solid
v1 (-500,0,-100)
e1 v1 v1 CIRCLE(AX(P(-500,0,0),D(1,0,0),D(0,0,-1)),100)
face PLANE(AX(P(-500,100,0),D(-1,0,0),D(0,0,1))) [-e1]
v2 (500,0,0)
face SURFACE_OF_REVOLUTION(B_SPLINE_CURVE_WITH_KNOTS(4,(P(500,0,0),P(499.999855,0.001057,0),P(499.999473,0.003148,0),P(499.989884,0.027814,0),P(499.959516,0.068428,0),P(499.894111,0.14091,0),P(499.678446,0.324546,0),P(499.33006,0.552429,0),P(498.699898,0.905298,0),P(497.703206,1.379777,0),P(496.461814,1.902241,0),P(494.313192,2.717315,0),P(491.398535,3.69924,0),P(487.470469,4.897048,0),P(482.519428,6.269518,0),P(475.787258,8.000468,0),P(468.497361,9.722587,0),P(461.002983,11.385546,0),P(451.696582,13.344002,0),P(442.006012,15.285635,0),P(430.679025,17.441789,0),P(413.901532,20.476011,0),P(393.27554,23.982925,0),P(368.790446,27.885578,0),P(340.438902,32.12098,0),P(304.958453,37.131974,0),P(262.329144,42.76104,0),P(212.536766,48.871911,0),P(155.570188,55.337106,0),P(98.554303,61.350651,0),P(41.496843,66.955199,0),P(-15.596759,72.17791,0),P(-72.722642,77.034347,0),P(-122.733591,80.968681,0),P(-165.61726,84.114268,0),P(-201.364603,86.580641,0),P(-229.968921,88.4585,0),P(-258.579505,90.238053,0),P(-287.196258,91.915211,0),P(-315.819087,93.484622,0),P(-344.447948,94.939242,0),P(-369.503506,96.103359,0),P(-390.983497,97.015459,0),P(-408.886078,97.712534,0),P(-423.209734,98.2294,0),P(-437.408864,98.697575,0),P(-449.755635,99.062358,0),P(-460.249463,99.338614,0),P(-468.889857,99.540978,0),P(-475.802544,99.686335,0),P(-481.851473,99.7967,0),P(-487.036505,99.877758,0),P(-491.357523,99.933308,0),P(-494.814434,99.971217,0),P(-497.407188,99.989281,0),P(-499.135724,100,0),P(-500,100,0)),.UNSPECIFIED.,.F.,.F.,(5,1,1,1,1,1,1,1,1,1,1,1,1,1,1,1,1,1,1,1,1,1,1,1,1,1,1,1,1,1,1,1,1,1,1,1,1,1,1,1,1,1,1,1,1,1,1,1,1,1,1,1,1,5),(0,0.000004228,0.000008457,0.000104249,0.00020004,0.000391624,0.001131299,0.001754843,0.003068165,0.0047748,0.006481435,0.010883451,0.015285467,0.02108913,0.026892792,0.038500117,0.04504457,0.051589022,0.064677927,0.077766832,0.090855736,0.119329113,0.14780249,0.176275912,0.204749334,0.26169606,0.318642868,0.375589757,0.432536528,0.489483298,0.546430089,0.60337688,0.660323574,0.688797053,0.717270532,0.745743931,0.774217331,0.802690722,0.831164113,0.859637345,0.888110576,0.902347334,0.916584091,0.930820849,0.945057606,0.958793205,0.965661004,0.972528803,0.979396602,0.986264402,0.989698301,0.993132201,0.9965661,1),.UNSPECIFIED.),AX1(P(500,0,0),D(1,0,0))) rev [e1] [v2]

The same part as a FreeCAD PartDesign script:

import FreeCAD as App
import Part
import Sketcher
from FreeCAD import Vector

doc = App.newDocument("Part")
body = doc.addObject("PartDesign::Body", "Body")

sketch1 = body.newObject("Sketcher::SketchObject", "Sketch")
sketch1.AttachmentSupport = (doc.getObject("XY_Plane"), [""])
sketch1.MapMode = "FlatFace"
sketch1.addGeometry(Part.LineSegment(Vector(-500, 0, 0), Vector(500, 0, 0)), False)
sketch1.addGeometry(Part.BSplineCurve([Vector(500, 0, 0), Vector(499.999855, 0.001057, 0), Vector(499.999473, 0.003148, 0), Vector(499.989884, 0.027814, 0), Vector(499.959516, 0.068428, 0), Vector(499.894111, 0.14091, 0), Vector(499.678446, 0.324546, 0), Vector(499.33006, 0.552429, 0), Vector(498.699898, 0.905298, 0), Vector(497.703206, 1.379777, 0), Vector(496.461814, 1.902241, 0), Vector(494.313192, 2.717315, 0), Vector(491.398535, 3.69924, 0), Vector(487.470469, 4.897048, 0), Vector(482.519428, 6.269518, 0), Vector(475.787258, 8.000468, 0), Vector(468.497361, 9.722587, 0), Vector(461.002983, 11.385546, 0), Vector(451.696582, 13.344002, 0), Vector(442.006012, 15.285635, 0), Vector(430.679025, 17.441789, 0), Vector(413.901532, 20.476011, 0), Vector(393.27554, 23.982925, 0), Vector(368.790446, 27.885578, 0), Vector(340.438902, 32.12098, 0), Vector(304.958453, 37.131974, 0), Vector(262.329144, 42.76104, 0), Vector(212.536766, 48.871911, 0), Vector(155.570188, 55.337106, 0), Vector(98.554303, 61.350651, 0), Vector(41.496843, 66.955199, 0), Vector(-15.596759, 72.17791, 0), Vector(-72.722642, 77.034347, 0), Vector(-122.733591, 80.968681, 0), Vector(-165.61726, 84.114268, 0), Vector(-201.364603, 86.580641, 0), Vector(-229.968921, 88.4585, 0), Vector(-258.579505, 90.238053, 0), Vector(-287.196258, 91.915211, 0), Vector(-315.819087, 93.484622, 0), Vector(-344.447948, 94.939242, 0), Vector(-369.503506, 96.103359, 0), Vector(-390.983497, 97.015459, 0), Vector(-408.886078, 97.712534, 0), Vector(-423.209734, 98.2294, 0), Vector(-437.408864, 98.697575, 0), Vector(-449.755635, 99.062358, 0), Vector(-460.249463, 99.338614, 0), Vector(-468.889857, 99.540978, 0), Vector(-475.802544, 99.686335, 0), Vector(-481.851473, 99.7967, 0), Vector(-487.036505, 99.877758, 0), Vector(-491.357523, 99.933308, 0), Vector(-494.814434, 99.971217, 0), Vector(-497.407188, 99.989281, 0), Vector(-499.135724, 100, 0), Vector(-500, 100, 0)], [5, 1, 1, 1, 1, 1, 1, 1, 1, 1, 1, 1, 1, 1, 1, 1, 1, 1, 1, 1, 1, 1, 1, 1, 1, 1, 1, 1, 1, 1, 1, 1, 1, 1, 1, 1, 1, 1, 1, 1, 1, 1, 1, 1, 1, 1, 1, 1, 1, 1, 1, 1, 1, 5], [0, 0.000004228, 0.000008457, 0.000104249, 0.00020004, 0.000391624, 0.001131299, 0.001754843, 0.003068165, 0.0047748, 0.006481435, 0.010883451, 0.015285467, 0.02108913, 0.026892792, 0.038500117, 0.04504457, 0.051589022, 0.064677927, 0.077766832, 0.090855736, 0.119329113, 0.14780249, 0.176275912, 0.204749334, 0.26169606, 0.318642868, 0.375589757, 0.432536528, 0.489483298, 0.546430089, 0.60337688, 0.660323574, 0.688797053, 0.717270532, 0.745743931, 0.774217331, 0.802690722, 0.831164113, 0.859637345, 0.888110576, 0.902347334, 0.916584091, 0.930820849, 0.945057606, 0.958793205, 0.965661004, 0.972528803, 0.979396602, 0.986264402, 0.989698301, 0.993132201, 0.9965661, 1], False, 4, [1, 1, 1, 1, 1, 1, 1, 1, 1, 1, 1, 1, 1, 1, 1, 1, 1, 1, 1, 1, 1, 1, 1, 1, 1, 1, 1, 1, 1, 1, 1, 1, 1, 1, 1, 1, 1, 1, 1, 1, 1, 1, 1, 1, 1, 1, 1, 1, 1, 1, 1, 1, 1, 1, 1, 1, 1], False), False)
sketch1.addGeometry(Part.LineSegment(Vector(-500, 100, 0), Vector(-500, 0, 0)), False)
sketch1.addConstraint(Sketcher.Constraint("Block", 1))
sketch1.addConstraint(Sketcher.Constraint("Coincident", 0, 2, 1, 1))
sketch1.addConstraint(Sketcher.Constraint("Coincident", 1, 2, 2, 1))
sketch1.addConstraint(Sketcher.Constraint("Coincident", 2, 2, 0, 1))
sketch1.addConstraint(Sketcher.Constraint("Horizontal", 0))
sketch1.addConstraint(Sketcher.Constraint("Vertical", 2))
revolution = body.newObject("PartDesign::Revolution", "Revolution")
revolution.Profile = sketch1
revolution.ReferenceAxis = (sketch1, ["H_Axis"])
revolution.Angle = 360

doc.recompute()
